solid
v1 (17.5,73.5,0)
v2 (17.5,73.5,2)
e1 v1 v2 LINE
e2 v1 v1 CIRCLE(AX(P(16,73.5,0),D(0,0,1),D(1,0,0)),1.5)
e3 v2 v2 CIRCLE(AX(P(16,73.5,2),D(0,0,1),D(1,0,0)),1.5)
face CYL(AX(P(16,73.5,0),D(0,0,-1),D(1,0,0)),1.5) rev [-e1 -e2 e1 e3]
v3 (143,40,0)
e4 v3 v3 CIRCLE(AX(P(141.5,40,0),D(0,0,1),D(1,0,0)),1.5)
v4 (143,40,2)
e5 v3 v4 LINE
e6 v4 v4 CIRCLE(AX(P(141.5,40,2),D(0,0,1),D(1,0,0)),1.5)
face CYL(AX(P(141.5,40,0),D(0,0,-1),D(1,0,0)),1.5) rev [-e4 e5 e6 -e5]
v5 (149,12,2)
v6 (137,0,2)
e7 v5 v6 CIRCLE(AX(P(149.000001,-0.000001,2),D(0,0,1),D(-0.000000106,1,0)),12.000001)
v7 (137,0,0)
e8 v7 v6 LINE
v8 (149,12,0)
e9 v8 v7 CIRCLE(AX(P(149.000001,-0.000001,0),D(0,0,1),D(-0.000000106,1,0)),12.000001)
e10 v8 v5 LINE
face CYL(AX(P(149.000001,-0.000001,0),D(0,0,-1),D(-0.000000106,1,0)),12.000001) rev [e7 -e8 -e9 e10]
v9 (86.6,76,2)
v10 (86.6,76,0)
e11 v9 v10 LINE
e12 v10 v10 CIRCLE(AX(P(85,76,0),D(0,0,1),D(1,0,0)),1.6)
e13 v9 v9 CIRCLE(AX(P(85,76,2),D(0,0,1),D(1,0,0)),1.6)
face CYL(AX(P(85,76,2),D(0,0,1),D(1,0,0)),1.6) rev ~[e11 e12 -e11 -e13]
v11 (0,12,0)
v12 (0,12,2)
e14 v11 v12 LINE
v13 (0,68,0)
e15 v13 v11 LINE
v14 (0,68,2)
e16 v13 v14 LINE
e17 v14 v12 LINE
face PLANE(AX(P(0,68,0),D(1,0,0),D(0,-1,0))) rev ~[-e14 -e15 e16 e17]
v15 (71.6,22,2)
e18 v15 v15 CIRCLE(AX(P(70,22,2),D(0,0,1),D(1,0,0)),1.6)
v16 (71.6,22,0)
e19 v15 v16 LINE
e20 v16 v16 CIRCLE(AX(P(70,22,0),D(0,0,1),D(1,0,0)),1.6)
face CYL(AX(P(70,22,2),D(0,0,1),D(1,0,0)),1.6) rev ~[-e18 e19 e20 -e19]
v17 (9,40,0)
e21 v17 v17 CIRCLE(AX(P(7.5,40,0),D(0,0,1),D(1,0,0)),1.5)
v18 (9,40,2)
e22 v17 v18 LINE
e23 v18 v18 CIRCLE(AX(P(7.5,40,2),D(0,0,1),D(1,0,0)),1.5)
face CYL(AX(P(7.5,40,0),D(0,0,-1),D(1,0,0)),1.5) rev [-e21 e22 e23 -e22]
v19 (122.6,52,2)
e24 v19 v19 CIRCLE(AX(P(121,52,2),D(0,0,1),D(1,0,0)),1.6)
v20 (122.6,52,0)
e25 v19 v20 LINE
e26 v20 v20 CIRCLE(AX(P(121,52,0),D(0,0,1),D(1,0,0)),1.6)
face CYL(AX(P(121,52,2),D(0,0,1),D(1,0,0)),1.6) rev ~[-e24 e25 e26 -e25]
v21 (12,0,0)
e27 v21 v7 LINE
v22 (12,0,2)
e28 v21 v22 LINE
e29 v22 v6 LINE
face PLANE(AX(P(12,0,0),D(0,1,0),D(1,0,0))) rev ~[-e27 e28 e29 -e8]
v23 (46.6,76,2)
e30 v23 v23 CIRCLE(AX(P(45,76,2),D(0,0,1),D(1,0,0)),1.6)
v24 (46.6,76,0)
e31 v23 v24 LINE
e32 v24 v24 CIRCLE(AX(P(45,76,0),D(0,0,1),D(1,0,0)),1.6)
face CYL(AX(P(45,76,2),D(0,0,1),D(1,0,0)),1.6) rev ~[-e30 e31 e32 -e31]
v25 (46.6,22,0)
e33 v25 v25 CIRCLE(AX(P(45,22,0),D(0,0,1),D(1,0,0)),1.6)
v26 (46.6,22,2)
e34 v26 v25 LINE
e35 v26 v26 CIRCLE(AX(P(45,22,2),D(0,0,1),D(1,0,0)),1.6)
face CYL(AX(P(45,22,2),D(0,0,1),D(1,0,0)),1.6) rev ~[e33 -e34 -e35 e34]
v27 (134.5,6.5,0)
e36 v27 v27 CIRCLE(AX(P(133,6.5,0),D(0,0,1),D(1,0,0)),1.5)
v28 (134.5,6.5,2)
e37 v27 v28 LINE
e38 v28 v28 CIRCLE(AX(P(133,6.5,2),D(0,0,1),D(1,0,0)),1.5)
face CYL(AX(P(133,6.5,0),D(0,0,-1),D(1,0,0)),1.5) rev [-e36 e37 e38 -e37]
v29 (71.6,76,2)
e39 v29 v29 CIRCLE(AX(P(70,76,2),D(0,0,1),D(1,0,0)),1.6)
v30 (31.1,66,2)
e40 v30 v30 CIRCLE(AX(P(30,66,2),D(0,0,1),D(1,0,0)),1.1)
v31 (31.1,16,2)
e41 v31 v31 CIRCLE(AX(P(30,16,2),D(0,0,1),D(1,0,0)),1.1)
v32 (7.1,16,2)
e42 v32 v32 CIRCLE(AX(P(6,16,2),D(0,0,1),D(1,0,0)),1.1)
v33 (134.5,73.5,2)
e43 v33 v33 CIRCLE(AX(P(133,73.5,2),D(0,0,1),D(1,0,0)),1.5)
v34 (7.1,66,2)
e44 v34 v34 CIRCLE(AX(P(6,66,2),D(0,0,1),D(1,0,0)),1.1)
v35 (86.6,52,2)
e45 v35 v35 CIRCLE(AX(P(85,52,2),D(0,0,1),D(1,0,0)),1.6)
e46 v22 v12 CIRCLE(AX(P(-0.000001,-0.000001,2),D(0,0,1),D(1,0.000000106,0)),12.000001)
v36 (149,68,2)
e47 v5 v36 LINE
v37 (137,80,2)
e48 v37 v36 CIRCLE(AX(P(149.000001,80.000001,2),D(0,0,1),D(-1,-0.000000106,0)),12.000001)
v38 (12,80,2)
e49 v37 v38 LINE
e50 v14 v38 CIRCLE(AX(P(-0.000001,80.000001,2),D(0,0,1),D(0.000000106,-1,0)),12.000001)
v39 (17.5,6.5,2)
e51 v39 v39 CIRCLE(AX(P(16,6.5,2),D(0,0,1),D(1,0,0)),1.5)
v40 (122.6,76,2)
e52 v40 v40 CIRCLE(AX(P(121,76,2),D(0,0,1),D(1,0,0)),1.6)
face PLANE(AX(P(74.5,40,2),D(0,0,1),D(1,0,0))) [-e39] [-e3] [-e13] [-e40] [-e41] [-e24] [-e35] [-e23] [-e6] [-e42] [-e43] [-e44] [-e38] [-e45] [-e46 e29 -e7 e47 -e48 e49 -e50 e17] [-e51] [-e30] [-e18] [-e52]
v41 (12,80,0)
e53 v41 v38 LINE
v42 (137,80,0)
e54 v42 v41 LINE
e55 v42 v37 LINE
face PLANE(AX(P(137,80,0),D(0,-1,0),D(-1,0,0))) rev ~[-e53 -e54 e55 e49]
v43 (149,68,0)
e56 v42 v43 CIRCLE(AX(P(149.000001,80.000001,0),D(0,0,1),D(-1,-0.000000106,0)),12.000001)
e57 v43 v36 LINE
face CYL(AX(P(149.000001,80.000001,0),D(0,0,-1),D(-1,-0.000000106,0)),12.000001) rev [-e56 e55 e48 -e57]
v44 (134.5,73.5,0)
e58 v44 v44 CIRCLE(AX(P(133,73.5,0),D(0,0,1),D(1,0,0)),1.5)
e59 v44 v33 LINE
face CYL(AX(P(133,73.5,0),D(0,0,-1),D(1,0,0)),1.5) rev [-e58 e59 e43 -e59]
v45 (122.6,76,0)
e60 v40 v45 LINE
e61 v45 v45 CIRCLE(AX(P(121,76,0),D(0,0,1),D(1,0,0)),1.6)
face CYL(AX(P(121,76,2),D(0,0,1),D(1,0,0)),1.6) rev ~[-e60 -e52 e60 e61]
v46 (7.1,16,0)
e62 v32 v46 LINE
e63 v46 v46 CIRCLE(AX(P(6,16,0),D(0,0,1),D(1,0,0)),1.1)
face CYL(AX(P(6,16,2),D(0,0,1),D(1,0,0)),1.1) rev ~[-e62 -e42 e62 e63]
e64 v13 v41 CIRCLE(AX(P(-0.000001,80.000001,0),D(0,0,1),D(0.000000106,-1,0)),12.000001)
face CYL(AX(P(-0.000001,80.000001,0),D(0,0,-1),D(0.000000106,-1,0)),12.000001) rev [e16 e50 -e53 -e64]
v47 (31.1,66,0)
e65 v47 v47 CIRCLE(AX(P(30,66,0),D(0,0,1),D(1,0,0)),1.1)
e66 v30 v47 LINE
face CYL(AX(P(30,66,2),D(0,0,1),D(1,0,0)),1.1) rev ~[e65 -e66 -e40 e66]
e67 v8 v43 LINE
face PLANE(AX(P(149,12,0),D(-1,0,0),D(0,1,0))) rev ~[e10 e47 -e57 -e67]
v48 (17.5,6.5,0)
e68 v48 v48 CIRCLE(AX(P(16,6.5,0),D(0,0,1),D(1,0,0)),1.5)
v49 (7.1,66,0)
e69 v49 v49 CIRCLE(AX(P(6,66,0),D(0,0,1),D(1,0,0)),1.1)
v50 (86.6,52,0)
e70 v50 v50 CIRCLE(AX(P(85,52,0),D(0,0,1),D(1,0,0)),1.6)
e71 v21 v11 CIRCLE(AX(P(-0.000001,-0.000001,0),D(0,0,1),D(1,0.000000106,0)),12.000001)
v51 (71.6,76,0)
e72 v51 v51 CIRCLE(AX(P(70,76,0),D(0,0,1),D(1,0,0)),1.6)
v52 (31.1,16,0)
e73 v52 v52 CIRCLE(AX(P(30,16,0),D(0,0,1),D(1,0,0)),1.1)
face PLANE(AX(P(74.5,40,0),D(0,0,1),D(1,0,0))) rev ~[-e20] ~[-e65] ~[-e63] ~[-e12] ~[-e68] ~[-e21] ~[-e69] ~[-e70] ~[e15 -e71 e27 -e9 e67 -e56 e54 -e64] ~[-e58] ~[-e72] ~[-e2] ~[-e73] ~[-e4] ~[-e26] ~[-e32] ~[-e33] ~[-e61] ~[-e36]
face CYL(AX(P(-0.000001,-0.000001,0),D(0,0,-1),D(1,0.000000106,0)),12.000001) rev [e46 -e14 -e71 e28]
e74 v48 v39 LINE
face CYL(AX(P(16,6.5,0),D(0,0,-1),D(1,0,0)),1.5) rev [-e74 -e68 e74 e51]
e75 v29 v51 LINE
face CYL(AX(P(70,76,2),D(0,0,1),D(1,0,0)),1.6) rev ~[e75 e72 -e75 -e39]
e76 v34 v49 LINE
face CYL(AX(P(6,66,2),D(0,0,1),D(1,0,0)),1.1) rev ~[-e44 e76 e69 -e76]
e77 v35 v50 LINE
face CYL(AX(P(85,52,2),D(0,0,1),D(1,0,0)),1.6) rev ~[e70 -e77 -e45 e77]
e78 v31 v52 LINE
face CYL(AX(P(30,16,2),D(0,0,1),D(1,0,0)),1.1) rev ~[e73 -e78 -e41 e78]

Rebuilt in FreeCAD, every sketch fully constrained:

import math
import FreeCAD as App
import Part
import Sketcher
Q = App.Units.Quantity

doc = App.newDocument("Part")
body = doc.addObject("PartDesign::Body", "Body")

# Sketch on XY plane
sketch1 = body.newObject("Sketcher::SketchObject", "Sketch")
sketch1.AttachmentSupport = (doc.getObject("XY_Plane"), [""])
sketch1.MapMode = "FlatFace"
sketch1.addGeometry(Part.LineSegment(App.Vector(0, 68, 0), App.Vector(0, 12, 0)), False)
sketch1.addGeometry(Part.ArcOfCircle(Part.Circle(App.Vector(0, 0, 0), App.Vector(0, 0, 1), 12), math.radians(0), math.radians(90)), False)
sketch1.addGeometry(Part.LineSegment(App.Vector(12, 0, 0), App.Vector(137, 0, 0)), False)
sketch1.addGeometry(Part.ArcOfCircle(Part.Circle(App.Vector(149, 0, 0), App.Vector(0, 0, 1), 12), math.radians(90), math.radians(180)), False)
sketch1.addGeometry(Part.LineSegment(App.Vector(149, 12, 0), App.Vector(149, 68, 0)), False)
sketch1.addGeometry(Part.ArcOfCircle(Part.Circle(App.Vector(149, 80, 0), App.Vector(0, 0, 1), 12), math.radians(-180), math.radians(-90)), False)
sketch1.addGeometry(Part.LineSegment(App.Vector(137, 80, 0), App.Vector(12, 80, 0)), False)
sketch1.addGeometry(Part.ArcOfCircle(Part.Circle(App.Vector(0, 80, 0), App.Vector(0, 0, 1), 12), math.radians(-90), math.radians(0)), False)
sketch1.addGeometry(Part.Circle(App.Vector(16, 6.5, 0), App.Vector(0, 0, 1), 1.5), False)
sketch1.addGeometry(Part.Circle(App.Vector(133, 6.5, 0), App.Vector(0, 0, 1), 1.5), False)
sketch1.addGeometry(Part.Circle(App.Vector(7.5, 40, 0), App.Vector(0, 0, 1), 1.5), False)
sketch1.addGeometry(Part.Circle(App.Vector(16, 73.5, 0), App.Vector(0, 0, 1), 1.5), False)
sketch1.addGeometry(Part.Circle(App.Vector(141.5, 40, 0), App.Vector(0, 0, 1), 1.5), False)
sketch1.addGeometry(Part.Circle(App.Vector(133, 73.5, 0), App.Vector(0, 0, 1), 1.5), False)
sketch1.addConstraint(Sketcher.Constraint("Coincident", 0, 2, 1, 2))
sketch1.addConstraint(Sketcher.Constraint("Coincident", 1, 1, 2, 1))
sketch1.addConstraint(Sketcher.Constraint("Coincident", 2, 2, 3, 2))
sketch1.addConstraint(Sketcher.Constraint("Coincident", 3, 1, 4, 1))
sketch1.addConstraint(Sketcher.Constraint("Coincident", 4, 2, 5, 2))
sketch1.addConstraint(Sketcher.Constraint("Coincident", 5, 1, 6, 1))
sketch1.addConstraint(Sketcher.Constraint("Coincident", 6, 2, 7, 2))
sketch1.addConstraint(Sketcher.Constraint("Coincident", 7, 1, 0, 1))
sketch1.addConstraint(Sketcher.Constraint("Vertical", 0))
sketch1.addConstraint(Sketcher.Constraint("Horizontal", 2))
sketch1.addConstraint(Sketcher.Constraint("Vertical", 4))
sketch1.addConstraint(Sketcher.Constraint("Horizontal", 6))
sketch1.addConstraint(Sketcher.Constraint("Coincident", 1, 3, -1, 1))
sketch1.addConstraint(Sketcher.Constraint("Equal", 1, 3))
sketch1.addConstraint(Sketcher.Constraint("Equal", 3, 5))
sketch1.addConstraint(Sketcher.Constraint("Equal", 5, 7))
sketch1.addConstraint(Sketcher.Constraint("Equal", 8, 9))
sketch1.addConstraint(Sketcher.Constraint("Equal", 9, 10))
sketch1.addConstraint(Sketcher.Constraint("Equal", 10, 11))
sketch1.addConstraint(Sketcher.Constraint("Equal", 11, 12))
sketch1.addConstraint(Sketcher.Constraint("Equal", 12, 13))
sketch1.addConstraint(Sketcher.Constraint("PointOnObject", 3, 3, -1))
sketch1.addConstraint(Sketcher.Constraint("PointOnObject", 7, 3, -2))
sketch1.addConstraint(Sketcher.Constraint("PointOnObject", 0, 2, -2))
sketch1.addConstraint(Sketcher.Constraint("PointOnObject", 1, 1, -1))
sketch1.addConstraint(Sketcher.Constraint("Horizontal", 5, 3, 7, 3))
sketch1.addConstraint(Sketcher.Constraint("Horizontal", 8, 3, 9, 3))
sketch1.addConstraint(Sketcher.Constraint("Horizontal", 10, 3, 12, 3))
sketch1.addConstraint(Sketcher.Constraint("Horizontal", 11, 3, 13, 3))
sketch1.addConstraint(Sketcher.Constraint("Horizontal", 7, 3, 5, 1))
sketch1.addConstraint(Sketcher.Constraint("Vertical", 3, 3, 5, 3))
sketch1.addConstraint(Sketcher.Constraint("Vertical", 8, 3, 11, 3))
sketch1.addConstraint(Sketcher.Constraint("Vertical", 9, 3, 13, 3))
sketch1.addConstraint(Sketcher.Constraint("Vertical", 5, 3, 3, 1))
sketch1.addConstraint(Sketcher.Constraint("Diameter", 8, Q("3 mm")))
sketch1.addConstraint(Sketcher.Constraint("Radius", 1, Q("12.000001 mm")))
sketch1.addConstraint(Sketcher.Constraint("DistanceX", 2, 1, 2, 2, Q("125 mm")))
sketch1.addConstraint(Sketcher.Constraint("DistanceY", 0, 2, 0, 1, Q("56 mm")))
sketch1.addConstraint(Sketcher.Constraint("DistanceX", -1, 1, 8, 3, Q("16 mm")))
sketch1.addConstraint(Sketcher.Constraint("DistanceX", -1, 1, 9, 3, Q("133 mm")))
sketch1.addConstraint(Sketcher.Constraint("DistanceY", -1, 1, 10, 3, Q("40 mm")))
sketch1.addConstraint(Sketcher.Constraint("DistanceY", 8, 3, 11, 3, Q("67 mm")))
sketch1.addConstraint(Sketcher.Constraint("DistanceY", -1, 1, 8, 3, Q("6.5 mm")))
sketch1.addConstraint(Sketcher.Constraint("DistanceX", -1, 1, 10, 3, Q("7.5 mm")))
sketch1.addConstraint(Sketcher.Constraint("DistanceX", -1, 1, 12, 3, Q("141.5 mm")))
pad1 = body.newObject("PartDesign::Pad", "Pad")
pad1.Profile = sketch1
pad1.Length = 2

# Sketch on XY plane
sketch2 = body.newObject("Sketcher::SketchObject", "Sketch001")
sketch2.AttachmentSupport = (doc.getObject("XY_Plane"), [""])
sketch2.MapMode = "FlatFace"
sketch2.AttachmentOffset = App.Placement(App.Vector(0, 0, 2), App.Rotation())
sketch2.addGeometry(Part.Circle(App.Vector(6, 66, 0), App.Vector(0, 0, 1), 1.1), False)
sketch2.addGeometry(Part.Circle(App.Vector(30, 66, 0), App.Vector(0, 0, 1), 1.1), False)
sketch2.addGeometry(Part.Circle(App.Vector(30, 16, 0), App.Vector(0, 0, 1), 1.1), False)
sketch2.addGeometry(Part.Circle(App.Vector(6, 16, 0), App.Vector(0, 0, 1), 1.1), False)
sketch2.addGeometry(Part.Circle(App.Vector(45, 22, 0), App.Vector(0, 0, 1), 1.6), False)
sketch2.addGeometry(Part.Circle(App.Vector(70, 22, 0), App.Vector(0, 0, 1), 1.6), False)
sketch2.addGeometry(Part.Circle(App.Vector(70, 76, 0), App.Vector(0, 0, 1), 1.6), False)
sketch2.addGeometry(Part.Circle(App.Vector(45, 76, 0), App.Vector(0, 0, 1), 1.6), False)
sketch2.addGeometry(Part.Circle(App.Vector(85, 76, 0), App.Vector(0, 0, 1), 1.6), False)
sketch2.addGeometry(Part.Circle(App.Vector(85, 52, 0), App.Vector(0, 0, 1), 1.6), False)
sketch2.addGeometry(Part.Circle(App.Vector(121, 52, 0), App.Vector(0, 0, 1), 1.6), False)
sketch2.addGeometry(Part.Circle(App.Vector(121, 76, 0), App.Vector(0, 0, 1), 1.6), False)
sketch2.addConstraint(Sketcher.Constraint("Equal", 0, 1))
sketch2.addConstraint(Sketcher.Constraint("Equal", 1, 2))
sketch2.addConstraint(Sketcher.Constraint("Equal", 2, 3))
sketch2.addConstraint(Sketcher.Constraint("Equal", 4, 5))
sketch2.addConstraint(Sketcher.Constraint("Equal", 5, 6))
sketch2.addConstraint(Sketcher.Constraint("Equal", 6, 7))
sketch2.addConstraint(Sketcher.Constraint("Equal", 7, 8))
sketch2.addConstraint(Sketcher.Constraint("Equal", 8, 9))
sketch2.addConstraint(Sketcher.Constraint("Equal", 9, 10))
sketch2.addConstraint(Sketcher.Constraint("Equal", 10, 11))
sketch2.addConstraint(Sketcher.Constraint("Horizontal", 0, 3, 1, 3))
sketch2.addConstraint(Sketcher.Constraint("Horizontal", 2, 3, 3, 3))
sketch2.addConstraint(Sketcher.Constraint("Horizontal", 4, 3, 5, 3))
sketch2.addConstraint(Sketcher.Constraint("Horizontal", 6, 3, 7, 3))
sketch2.addConstraint(Sketcher.Constraint("Horizontal", 7, 3, 8, 3))
sketch2.addConstraint(Sketcher.Constraint("Horizontal", 9, 3, 10, 3))
sketch2.addConstraint(Sketcher.Constraint("Horizontal", 8, 3, 11, 3))
sketch2.addConstraint(Sketcher.Constraint("Vertical", 1, 3, 2, 3))
sketch2.addConstraint(Sketcher.Constraint("Vertical", 0, 3, 3, 3))
sketch2.addConstraint(Sketcher.Constraint("Vertical", 5, 3, 6, 3))
sketch2.addConstraint(Sketcher.Constraint("Vertical", 4, 3, 7, 3))
sketch2.addConstraint(Sketcher.Constraint("Vertical", 8, 3, 9, 3))
sketch2.addConstraint(Sketcher.Constraint("Vertical", 10, 3, 11, 3))
sketch2.addConstraint(Sketcher.Constraint("Diameter", 0, Q("2.2 mm")))
sketch2.addConstraint(Sketcher.Constraint("Diameter", 4, Q("3.2 mm")))
sketch2.addConstraint(Sketcher.Constraint("DistanceX", -1, 1, 0, 3, Q("6 mm")))
sketch2.addConstraint(Sketcher.Constraint("DistanceY", -1, 1, 0, 3, Q("66 mm")))
sketch2.addConstraint(Sketcher.Constraint("DistanceX", -1, 1, 1, 3, Q("30 mm")))
sketch2.addConstraint(Sketcher.Constraint("DistanceY", -1, 1, 2, 3, Q("16 mm")))
sketch2.addConstraint(Sketcher.Constraint("DistanceX", -1, 1, 4, 3, Q("45 mm")))
sketch2.addConstraint(Sketcher.Constraint("DistanceY", -1, 1, 4, 3, Q("22 mm")))
sketch2.addConstraint(Sketcher.Constraint("DistanceX", -1, 1, 5, 3, Q("70 mm")))
sketch2.addConstraint(Sketcher.Constraint("DistanceY", -1, 1, 6, 3, Q("76 mm")))
sketch2.addConstraint(Sketcher.Constraint("DistanceX", -1, 1, 8, 3, Q("85 mm")))
sketch2.addConstraint(Sketcher.Constraint("DistanceY", -1, 1, 9, 3, Q("52 mm")))
sketch2.addConstraint(Sketcher.Constraint("DistanceX", -1, 1, 10, 3, Q("121 mm")))
pocket1 = body.newObject("PartDesign::Pocket", "Pocket")
pocket1.Profile = sketch2
pocket1.Type = "ThroughAll"

doc.recompute()
